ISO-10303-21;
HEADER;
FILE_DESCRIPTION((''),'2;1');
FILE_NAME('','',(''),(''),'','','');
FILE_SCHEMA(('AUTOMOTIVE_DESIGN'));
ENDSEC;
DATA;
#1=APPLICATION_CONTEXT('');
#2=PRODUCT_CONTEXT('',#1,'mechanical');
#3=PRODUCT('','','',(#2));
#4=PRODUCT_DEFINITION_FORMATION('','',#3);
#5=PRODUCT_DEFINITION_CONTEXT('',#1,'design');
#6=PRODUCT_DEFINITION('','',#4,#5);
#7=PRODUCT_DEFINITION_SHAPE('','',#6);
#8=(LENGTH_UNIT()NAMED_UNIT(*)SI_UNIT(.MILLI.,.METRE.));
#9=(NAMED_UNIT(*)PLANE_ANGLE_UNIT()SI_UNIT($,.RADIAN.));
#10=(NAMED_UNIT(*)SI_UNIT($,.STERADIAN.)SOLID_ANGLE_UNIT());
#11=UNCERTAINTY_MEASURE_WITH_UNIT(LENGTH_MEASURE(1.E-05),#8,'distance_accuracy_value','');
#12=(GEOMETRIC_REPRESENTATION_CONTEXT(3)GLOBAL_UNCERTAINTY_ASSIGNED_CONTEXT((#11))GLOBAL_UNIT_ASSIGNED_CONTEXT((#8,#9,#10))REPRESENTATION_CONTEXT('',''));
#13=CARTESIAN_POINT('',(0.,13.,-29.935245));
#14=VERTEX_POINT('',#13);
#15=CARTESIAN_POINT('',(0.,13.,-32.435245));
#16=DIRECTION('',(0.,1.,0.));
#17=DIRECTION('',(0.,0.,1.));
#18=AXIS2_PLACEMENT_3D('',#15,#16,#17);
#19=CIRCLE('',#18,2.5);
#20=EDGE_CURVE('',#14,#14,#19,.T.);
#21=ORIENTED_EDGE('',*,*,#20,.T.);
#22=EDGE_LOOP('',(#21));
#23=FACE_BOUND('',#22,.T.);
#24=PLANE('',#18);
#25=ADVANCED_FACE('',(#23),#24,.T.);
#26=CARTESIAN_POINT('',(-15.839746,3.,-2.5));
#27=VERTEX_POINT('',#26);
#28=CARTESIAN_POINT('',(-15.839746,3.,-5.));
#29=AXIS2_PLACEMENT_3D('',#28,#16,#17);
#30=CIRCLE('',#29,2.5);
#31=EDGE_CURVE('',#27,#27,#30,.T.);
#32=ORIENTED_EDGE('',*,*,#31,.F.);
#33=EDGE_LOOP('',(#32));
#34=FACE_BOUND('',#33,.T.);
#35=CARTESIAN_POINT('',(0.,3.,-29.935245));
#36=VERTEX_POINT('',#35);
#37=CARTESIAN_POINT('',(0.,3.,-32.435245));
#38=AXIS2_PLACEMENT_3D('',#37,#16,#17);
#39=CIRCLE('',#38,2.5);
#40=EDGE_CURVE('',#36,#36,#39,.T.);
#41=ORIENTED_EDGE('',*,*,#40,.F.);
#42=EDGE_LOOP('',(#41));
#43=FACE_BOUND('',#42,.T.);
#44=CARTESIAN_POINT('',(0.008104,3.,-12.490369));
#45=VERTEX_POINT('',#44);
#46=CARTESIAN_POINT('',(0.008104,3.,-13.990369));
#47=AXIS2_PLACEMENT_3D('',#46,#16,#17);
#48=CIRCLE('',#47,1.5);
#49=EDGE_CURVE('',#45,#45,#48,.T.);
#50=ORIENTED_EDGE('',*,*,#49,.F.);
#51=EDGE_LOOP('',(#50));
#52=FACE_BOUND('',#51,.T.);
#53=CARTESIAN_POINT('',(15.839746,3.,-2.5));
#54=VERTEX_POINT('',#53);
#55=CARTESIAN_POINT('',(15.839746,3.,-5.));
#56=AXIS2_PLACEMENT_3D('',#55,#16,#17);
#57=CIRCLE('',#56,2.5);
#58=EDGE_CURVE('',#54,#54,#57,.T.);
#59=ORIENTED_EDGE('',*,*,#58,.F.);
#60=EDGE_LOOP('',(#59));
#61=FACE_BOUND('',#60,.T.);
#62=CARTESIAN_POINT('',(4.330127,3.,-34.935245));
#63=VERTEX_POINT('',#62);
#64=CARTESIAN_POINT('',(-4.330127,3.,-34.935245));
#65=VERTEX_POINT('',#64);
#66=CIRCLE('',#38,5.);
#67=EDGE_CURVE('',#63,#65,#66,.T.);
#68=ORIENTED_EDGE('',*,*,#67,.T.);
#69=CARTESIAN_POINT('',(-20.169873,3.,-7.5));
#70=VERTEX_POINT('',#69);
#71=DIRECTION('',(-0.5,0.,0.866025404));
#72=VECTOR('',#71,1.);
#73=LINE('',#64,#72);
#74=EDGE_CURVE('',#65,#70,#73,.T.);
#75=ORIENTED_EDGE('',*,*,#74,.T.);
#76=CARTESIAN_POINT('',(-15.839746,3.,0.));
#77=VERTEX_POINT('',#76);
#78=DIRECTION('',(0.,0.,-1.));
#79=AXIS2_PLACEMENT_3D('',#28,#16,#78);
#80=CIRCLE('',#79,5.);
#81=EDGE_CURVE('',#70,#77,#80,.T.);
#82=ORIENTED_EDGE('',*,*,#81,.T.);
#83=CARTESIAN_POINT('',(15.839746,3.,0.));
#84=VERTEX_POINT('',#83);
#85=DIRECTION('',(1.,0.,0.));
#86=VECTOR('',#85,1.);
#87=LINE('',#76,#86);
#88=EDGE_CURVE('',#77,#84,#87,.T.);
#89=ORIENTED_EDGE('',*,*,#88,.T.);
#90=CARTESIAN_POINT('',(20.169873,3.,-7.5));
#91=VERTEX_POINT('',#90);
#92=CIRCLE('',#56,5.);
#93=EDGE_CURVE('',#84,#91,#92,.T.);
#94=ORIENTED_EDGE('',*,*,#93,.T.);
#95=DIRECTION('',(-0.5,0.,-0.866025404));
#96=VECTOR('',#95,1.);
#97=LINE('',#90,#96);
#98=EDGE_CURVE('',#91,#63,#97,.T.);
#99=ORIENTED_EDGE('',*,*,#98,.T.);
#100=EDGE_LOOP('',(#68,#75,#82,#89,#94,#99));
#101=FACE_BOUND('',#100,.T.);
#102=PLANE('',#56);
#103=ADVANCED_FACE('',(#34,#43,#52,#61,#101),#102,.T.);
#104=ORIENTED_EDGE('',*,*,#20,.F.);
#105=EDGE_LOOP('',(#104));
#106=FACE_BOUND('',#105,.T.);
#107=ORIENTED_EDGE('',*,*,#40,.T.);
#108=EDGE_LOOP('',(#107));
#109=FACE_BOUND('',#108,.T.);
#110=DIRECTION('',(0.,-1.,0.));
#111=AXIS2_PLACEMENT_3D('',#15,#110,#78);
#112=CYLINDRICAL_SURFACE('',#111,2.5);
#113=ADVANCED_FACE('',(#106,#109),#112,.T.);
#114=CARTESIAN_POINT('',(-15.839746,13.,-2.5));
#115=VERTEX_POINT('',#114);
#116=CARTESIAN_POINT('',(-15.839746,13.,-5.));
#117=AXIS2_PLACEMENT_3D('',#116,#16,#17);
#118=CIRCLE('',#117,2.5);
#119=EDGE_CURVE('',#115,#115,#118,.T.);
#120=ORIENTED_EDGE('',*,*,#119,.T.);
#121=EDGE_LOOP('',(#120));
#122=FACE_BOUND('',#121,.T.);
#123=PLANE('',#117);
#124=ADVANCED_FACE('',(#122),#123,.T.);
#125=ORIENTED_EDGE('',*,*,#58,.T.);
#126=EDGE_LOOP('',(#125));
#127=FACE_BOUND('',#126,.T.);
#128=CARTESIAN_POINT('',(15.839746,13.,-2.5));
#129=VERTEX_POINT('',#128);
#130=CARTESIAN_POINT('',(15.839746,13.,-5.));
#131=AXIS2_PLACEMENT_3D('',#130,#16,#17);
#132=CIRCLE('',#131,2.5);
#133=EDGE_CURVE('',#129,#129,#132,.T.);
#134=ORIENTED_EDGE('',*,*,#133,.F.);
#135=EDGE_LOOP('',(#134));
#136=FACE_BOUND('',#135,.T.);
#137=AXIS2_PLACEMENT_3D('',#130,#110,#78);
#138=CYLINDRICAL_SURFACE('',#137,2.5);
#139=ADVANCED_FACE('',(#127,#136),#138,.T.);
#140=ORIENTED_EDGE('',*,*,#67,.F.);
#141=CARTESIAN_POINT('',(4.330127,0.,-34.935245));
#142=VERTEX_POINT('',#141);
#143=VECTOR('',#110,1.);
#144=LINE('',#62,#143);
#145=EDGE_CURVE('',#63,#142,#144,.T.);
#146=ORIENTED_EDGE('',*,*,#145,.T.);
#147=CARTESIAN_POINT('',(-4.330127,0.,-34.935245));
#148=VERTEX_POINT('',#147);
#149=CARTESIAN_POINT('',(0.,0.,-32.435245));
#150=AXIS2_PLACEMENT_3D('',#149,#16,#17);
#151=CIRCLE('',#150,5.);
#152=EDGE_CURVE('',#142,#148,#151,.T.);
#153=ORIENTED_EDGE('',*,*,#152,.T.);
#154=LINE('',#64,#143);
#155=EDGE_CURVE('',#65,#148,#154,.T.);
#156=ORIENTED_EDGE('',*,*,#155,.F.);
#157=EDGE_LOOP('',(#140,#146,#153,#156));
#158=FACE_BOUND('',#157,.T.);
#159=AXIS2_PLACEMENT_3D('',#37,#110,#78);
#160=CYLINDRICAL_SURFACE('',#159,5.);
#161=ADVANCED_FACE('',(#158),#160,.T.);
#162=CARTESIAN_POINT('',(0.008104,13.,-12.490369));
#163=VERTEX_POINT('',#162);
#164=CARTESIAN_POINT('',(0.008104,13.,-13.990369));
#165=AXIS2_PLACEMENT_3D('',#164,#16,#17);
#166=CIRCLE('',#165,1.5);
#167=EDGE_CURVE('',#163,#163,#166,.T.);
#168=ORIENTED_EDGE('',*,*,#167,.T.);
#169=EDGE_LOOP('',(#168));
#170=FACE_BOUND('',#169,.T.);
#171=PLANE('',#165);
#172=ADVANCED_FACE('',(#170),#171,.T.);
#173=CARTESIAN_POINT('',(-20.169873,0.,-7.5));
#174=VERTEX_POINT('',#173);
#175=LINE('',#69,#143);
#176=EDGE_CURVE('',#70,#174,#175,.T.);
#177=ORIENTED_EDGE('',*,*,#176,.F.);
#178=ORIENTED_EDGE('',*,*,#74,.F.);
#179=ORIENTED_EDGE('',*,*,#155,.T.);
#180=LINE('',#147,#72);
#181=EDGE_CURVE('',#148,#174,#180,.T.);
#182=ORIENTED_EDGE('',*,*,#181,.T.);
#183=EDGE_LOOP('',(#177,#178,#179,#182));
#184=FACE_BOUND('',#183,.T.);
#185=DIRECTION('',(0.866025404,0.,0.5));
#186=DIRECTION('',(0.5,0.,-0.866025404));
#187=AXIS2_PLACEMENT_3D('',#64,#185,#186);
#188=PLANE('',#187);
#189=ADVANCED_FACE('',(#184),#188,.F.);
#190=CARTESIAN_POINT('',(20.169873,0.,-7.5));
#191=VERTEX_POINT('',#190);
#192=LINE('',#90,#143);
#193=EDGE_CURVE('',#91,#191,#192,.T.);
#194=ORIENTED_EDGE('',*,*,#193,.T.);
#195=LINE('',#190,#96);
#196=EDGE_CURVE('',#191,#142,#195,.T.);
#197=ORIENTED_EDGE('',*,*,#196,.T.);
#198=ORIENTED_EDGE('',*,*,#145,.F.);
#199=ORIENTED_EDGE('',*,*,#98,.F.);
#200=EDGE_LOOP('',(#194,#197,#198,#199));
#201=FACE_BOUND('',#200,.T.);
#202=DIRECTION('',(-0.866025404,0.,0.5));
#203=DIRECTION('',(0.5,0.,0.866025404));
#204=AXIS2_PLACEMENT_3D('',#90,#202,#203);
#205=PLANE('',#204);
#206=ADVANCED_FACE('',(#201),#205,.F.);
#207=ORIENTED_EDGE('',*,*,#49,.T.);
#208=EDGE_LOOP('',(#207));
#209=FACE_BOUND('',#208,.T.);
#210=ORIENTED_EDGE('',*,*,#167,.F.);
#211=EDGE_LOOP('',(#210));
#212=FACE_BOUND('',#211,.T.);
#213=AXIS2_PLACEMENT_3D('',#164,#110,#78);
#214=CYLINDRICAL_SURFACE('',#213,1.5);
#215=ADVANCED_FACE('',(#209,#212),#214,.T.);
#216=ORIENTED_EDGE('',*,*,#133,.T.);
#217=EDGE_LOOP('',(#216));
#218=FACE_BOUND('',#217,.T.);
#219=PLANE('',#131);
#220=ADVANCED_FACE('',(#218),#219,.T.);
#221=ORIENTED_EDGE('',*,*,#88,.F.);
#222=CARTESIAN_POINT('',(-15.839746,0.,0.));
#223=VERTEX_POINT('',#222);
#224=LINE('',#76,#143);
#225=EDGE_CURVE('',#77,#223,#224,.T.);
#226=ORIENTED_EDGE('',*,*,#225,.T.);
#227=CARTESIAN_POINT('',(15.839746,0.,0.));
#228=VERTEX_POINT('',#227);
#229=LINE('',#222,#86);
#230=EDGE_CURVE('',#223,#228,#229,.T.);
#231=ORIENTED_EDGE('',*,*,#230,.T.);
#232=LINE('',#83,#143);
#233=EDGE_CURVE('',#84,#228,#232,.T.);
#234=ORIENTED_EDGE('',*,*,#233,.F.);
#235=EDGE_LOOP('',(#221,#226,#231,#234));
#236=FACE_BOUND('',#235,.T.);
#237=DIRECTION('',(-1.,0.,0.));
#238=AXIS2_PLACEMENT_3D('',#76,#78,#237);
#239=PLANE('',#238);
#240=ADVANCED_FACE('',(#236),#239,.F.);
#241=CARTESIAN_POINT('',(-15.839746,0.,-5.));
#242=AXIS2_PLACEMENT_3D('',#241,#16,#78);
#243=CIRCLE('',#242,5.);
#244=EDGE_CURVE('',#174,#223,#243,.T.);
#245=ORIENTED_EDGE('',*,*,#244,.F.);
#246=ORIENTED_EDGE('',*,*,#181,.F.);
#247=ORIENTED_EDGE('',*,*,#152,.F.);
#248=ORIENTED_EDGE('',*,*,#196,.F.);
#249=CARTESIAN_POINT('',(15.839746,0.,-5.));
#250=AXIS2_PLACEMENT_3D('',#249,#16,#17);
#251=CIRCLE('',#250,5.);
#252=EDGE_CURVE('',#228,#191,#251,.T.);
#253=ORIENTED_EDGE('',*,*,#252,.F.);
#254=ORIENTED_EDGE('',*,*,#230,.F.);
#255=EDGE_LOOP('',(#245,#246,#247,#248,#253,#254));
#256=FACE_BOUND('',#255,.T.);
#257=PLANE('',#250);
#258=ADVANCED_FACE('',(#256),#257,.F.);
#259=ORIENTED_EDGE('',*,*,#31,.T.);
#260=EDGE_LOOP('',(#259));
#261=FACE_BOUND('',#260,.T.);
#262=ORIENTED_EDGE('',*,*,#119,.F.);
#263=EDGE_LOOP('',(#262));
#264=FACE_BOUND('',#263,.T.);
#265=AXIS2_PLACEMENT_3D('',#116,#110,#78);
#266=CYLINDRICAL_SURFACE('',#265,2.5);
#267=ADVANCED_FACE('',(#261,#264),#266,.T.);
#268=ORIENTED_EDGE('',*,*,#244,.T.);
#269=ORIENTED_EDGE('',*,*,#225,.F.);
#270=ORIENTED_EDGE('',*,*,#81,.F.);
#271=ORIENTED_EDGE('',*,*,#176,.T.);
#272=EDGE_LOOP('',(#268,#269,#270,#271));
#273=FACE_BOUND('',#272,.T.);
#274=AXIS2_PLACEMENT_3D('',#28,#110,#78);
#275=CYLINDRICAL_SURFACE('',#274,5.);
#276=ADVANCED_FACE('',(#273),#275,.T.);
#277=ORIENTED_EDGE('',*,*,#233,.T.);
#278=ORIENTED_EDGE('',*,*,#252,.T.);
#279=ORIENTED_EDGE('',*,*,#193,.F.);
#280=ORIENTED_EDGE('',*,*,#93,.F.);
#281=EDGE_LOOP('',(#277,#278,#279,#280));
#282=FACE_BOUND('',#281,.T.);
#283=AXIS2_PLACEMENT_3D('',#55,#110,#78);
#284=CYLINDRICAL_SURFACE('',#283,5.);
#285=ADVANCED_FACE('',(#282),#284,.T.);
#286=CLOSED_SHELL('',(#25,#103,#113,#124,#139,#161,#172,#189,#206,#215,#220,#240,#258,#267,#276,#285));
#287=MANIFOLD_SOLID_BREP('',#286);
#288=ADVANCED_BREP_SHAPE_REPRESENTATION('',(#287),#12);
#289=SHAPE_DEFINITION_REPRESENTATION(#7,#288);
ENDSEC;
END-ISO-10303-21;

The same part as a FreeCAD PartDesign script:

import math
import FreeCAD as App
import Part
import Sketcher
from FreeCAD import Vector
Q = App.Units.Quantity

doc = App.newDocument("Part")
body = doc.addObject("PartDesign::Body", "Body")

sketch1 = body.newObject("Sketcher::SketchObject", "Sketch")
sketch1.AttachmentSupport = (doc.getObject("XZ_Plane"), [""])
sketch1.MapMode = "FlatFace"
sketch1.addGeometry([
    Part.LineSegment(Vector(-16, 0, 0), Vector(16, 0, 0)),
    Part.ArcOfCircle(Part.Circle(Vector(16, -5, 0), Vector(0, 0, 1), 5), math.radians(-30), math.radians(90)),
    Part.LineSegment(Vector(20, -8, 0), Vector(4, -35, 0)),
    Part.ArcOfCircle(Part.Circle(Vector(0, -32, 0), Vector(0, 0, 1), 5), math.radians(-150), math.radians(-30)),
    Part.LineSegment(Vector(-4, -35, 0), Vector(-20, -8, 0)),
    Part.ArcOfCircle(Part.Circle(Vector(-16, -5, 0), Vector(0, 0, 1), 5), math.radians(90), math.radians(210)),
], False)
sketch1.addConstraint([
    Sketcher.Constraint("Tangent", 0, 2, 1, 2),
    Sketcher.Constraint("Tangent", 1, 1, 2, 1),
    Sketcher.Constraint("Tangent", 2, 2, 3, 2),
    Sketcher.Constraint("Tangent", 3, 1, 4, 1),
    Sketcher.Constraint("Tangent", 4, 2, 5, 2),
    Sketcher.Constraint("Tangent", 5, 1, 0, 1),
    Sketcher.Constraint("Horizontal", 0),
    Sketcher.Constraint("Equal", 1, 3),
    Sketcher.Constraint("Equal", 3, 5),
    Sketcher.Constraint("Symmetric", 0, 2, 5, 1, -1, 1),
    Sketcher.Constraint("PointOnObject", 3, 3, -2),
    Sketcher.Constraint("Radius", 1, 5.0),
    Sketcher.Constraint("Angle", 2, Q("-120 deg")),
    Sketcher.Constraint("DistanceX", 3, 1, 1, 1, 24.5),
])
pad1 = body.newObject("PartDesign::Pad", "Pad")
pad1.Profile = sketch1
pad1.Length = 3
pad1.Reversed = True

sketch2 = body.newObject("Sketcher::SketchObject", "Sketch001")
sketch2.AttachmentSupport = (doc.getObject("XZ_Plane"), [""])
sketch2.MapMode = "FlatFace"
sketch2.AttachmentOffset = App.Placement(Vector(0, 0, -3), App.Rotation())
sketch2.addGeometry([
    Part.Circle(Vector(0, -32.4, 0), Vector(0, 0, 1), 2.5),
    Part.Circle(Vector(15.8, -5, 0), Vector(0, 0, 1), 2.5),
    Part.Circle(Vector(-15.8, -5, 0), Vector(0, 0, 1), 2.5),
], False)
sketch2.addConstraint([
    Sketcher.Constraint("Equal", 0, 1),
    Sketcher.Constraint("Equal", 1, 2),
    Sketcher.Constraint("Symmetric", 1, 3, 2, 3, -2),
    Sketcher.Constraint("PointOnObject", 0, 3, -2),
    Sketcher.Constraint("Diameter", 0, 5.0),
    Sketcher.Constraint("DistanceY", 1, 3, -1, 1, 5.0),
    Sketcher.Constraint("DistanceX", 2, 3, 1, 3, 31.679492),
    Sketcher.Constraint("DistanceY", 0, 3, -1, 1, 32.435245),
])
pad2 = body.newObject("PartDesign::Pad", "Pad001")
pad2.Profile = sketch2
pad2.Length = 10
pad2.Reversed = True

sketch3 = body.newObject("Sketcher::SketchObject", "Sketch002")
sketch3.AttachmentSupport = (doc.getObject("XZ_Plane"), [""])
sketch3.MapMode = "FlatFace"
sketch3.AttachmentOffset = App.Placement(Vector(0, 0, -3), App.Rotation())
sketch3.addGeometry(Part.Circle(Vector(0, -14, 0), Vector(0, 0, 1), 1.5), False)
sketch3.addConstraint([
    Sketcher.Constraint("Diameter", 0, 3.0),
    Sketcher.Constraint("DistanceY", 0, 3, -1, 1, 13.990369),
    Sketcher.Constraint("DistanceX", -1, 1, 0, 3, 0.008104),
])
pad3 = body.newObject("PartDesign::Pad", "Pad002")
pad3.Profile = sketch3
pad3.Length = 10
pad3.Reversed = True

doc.recompute()
